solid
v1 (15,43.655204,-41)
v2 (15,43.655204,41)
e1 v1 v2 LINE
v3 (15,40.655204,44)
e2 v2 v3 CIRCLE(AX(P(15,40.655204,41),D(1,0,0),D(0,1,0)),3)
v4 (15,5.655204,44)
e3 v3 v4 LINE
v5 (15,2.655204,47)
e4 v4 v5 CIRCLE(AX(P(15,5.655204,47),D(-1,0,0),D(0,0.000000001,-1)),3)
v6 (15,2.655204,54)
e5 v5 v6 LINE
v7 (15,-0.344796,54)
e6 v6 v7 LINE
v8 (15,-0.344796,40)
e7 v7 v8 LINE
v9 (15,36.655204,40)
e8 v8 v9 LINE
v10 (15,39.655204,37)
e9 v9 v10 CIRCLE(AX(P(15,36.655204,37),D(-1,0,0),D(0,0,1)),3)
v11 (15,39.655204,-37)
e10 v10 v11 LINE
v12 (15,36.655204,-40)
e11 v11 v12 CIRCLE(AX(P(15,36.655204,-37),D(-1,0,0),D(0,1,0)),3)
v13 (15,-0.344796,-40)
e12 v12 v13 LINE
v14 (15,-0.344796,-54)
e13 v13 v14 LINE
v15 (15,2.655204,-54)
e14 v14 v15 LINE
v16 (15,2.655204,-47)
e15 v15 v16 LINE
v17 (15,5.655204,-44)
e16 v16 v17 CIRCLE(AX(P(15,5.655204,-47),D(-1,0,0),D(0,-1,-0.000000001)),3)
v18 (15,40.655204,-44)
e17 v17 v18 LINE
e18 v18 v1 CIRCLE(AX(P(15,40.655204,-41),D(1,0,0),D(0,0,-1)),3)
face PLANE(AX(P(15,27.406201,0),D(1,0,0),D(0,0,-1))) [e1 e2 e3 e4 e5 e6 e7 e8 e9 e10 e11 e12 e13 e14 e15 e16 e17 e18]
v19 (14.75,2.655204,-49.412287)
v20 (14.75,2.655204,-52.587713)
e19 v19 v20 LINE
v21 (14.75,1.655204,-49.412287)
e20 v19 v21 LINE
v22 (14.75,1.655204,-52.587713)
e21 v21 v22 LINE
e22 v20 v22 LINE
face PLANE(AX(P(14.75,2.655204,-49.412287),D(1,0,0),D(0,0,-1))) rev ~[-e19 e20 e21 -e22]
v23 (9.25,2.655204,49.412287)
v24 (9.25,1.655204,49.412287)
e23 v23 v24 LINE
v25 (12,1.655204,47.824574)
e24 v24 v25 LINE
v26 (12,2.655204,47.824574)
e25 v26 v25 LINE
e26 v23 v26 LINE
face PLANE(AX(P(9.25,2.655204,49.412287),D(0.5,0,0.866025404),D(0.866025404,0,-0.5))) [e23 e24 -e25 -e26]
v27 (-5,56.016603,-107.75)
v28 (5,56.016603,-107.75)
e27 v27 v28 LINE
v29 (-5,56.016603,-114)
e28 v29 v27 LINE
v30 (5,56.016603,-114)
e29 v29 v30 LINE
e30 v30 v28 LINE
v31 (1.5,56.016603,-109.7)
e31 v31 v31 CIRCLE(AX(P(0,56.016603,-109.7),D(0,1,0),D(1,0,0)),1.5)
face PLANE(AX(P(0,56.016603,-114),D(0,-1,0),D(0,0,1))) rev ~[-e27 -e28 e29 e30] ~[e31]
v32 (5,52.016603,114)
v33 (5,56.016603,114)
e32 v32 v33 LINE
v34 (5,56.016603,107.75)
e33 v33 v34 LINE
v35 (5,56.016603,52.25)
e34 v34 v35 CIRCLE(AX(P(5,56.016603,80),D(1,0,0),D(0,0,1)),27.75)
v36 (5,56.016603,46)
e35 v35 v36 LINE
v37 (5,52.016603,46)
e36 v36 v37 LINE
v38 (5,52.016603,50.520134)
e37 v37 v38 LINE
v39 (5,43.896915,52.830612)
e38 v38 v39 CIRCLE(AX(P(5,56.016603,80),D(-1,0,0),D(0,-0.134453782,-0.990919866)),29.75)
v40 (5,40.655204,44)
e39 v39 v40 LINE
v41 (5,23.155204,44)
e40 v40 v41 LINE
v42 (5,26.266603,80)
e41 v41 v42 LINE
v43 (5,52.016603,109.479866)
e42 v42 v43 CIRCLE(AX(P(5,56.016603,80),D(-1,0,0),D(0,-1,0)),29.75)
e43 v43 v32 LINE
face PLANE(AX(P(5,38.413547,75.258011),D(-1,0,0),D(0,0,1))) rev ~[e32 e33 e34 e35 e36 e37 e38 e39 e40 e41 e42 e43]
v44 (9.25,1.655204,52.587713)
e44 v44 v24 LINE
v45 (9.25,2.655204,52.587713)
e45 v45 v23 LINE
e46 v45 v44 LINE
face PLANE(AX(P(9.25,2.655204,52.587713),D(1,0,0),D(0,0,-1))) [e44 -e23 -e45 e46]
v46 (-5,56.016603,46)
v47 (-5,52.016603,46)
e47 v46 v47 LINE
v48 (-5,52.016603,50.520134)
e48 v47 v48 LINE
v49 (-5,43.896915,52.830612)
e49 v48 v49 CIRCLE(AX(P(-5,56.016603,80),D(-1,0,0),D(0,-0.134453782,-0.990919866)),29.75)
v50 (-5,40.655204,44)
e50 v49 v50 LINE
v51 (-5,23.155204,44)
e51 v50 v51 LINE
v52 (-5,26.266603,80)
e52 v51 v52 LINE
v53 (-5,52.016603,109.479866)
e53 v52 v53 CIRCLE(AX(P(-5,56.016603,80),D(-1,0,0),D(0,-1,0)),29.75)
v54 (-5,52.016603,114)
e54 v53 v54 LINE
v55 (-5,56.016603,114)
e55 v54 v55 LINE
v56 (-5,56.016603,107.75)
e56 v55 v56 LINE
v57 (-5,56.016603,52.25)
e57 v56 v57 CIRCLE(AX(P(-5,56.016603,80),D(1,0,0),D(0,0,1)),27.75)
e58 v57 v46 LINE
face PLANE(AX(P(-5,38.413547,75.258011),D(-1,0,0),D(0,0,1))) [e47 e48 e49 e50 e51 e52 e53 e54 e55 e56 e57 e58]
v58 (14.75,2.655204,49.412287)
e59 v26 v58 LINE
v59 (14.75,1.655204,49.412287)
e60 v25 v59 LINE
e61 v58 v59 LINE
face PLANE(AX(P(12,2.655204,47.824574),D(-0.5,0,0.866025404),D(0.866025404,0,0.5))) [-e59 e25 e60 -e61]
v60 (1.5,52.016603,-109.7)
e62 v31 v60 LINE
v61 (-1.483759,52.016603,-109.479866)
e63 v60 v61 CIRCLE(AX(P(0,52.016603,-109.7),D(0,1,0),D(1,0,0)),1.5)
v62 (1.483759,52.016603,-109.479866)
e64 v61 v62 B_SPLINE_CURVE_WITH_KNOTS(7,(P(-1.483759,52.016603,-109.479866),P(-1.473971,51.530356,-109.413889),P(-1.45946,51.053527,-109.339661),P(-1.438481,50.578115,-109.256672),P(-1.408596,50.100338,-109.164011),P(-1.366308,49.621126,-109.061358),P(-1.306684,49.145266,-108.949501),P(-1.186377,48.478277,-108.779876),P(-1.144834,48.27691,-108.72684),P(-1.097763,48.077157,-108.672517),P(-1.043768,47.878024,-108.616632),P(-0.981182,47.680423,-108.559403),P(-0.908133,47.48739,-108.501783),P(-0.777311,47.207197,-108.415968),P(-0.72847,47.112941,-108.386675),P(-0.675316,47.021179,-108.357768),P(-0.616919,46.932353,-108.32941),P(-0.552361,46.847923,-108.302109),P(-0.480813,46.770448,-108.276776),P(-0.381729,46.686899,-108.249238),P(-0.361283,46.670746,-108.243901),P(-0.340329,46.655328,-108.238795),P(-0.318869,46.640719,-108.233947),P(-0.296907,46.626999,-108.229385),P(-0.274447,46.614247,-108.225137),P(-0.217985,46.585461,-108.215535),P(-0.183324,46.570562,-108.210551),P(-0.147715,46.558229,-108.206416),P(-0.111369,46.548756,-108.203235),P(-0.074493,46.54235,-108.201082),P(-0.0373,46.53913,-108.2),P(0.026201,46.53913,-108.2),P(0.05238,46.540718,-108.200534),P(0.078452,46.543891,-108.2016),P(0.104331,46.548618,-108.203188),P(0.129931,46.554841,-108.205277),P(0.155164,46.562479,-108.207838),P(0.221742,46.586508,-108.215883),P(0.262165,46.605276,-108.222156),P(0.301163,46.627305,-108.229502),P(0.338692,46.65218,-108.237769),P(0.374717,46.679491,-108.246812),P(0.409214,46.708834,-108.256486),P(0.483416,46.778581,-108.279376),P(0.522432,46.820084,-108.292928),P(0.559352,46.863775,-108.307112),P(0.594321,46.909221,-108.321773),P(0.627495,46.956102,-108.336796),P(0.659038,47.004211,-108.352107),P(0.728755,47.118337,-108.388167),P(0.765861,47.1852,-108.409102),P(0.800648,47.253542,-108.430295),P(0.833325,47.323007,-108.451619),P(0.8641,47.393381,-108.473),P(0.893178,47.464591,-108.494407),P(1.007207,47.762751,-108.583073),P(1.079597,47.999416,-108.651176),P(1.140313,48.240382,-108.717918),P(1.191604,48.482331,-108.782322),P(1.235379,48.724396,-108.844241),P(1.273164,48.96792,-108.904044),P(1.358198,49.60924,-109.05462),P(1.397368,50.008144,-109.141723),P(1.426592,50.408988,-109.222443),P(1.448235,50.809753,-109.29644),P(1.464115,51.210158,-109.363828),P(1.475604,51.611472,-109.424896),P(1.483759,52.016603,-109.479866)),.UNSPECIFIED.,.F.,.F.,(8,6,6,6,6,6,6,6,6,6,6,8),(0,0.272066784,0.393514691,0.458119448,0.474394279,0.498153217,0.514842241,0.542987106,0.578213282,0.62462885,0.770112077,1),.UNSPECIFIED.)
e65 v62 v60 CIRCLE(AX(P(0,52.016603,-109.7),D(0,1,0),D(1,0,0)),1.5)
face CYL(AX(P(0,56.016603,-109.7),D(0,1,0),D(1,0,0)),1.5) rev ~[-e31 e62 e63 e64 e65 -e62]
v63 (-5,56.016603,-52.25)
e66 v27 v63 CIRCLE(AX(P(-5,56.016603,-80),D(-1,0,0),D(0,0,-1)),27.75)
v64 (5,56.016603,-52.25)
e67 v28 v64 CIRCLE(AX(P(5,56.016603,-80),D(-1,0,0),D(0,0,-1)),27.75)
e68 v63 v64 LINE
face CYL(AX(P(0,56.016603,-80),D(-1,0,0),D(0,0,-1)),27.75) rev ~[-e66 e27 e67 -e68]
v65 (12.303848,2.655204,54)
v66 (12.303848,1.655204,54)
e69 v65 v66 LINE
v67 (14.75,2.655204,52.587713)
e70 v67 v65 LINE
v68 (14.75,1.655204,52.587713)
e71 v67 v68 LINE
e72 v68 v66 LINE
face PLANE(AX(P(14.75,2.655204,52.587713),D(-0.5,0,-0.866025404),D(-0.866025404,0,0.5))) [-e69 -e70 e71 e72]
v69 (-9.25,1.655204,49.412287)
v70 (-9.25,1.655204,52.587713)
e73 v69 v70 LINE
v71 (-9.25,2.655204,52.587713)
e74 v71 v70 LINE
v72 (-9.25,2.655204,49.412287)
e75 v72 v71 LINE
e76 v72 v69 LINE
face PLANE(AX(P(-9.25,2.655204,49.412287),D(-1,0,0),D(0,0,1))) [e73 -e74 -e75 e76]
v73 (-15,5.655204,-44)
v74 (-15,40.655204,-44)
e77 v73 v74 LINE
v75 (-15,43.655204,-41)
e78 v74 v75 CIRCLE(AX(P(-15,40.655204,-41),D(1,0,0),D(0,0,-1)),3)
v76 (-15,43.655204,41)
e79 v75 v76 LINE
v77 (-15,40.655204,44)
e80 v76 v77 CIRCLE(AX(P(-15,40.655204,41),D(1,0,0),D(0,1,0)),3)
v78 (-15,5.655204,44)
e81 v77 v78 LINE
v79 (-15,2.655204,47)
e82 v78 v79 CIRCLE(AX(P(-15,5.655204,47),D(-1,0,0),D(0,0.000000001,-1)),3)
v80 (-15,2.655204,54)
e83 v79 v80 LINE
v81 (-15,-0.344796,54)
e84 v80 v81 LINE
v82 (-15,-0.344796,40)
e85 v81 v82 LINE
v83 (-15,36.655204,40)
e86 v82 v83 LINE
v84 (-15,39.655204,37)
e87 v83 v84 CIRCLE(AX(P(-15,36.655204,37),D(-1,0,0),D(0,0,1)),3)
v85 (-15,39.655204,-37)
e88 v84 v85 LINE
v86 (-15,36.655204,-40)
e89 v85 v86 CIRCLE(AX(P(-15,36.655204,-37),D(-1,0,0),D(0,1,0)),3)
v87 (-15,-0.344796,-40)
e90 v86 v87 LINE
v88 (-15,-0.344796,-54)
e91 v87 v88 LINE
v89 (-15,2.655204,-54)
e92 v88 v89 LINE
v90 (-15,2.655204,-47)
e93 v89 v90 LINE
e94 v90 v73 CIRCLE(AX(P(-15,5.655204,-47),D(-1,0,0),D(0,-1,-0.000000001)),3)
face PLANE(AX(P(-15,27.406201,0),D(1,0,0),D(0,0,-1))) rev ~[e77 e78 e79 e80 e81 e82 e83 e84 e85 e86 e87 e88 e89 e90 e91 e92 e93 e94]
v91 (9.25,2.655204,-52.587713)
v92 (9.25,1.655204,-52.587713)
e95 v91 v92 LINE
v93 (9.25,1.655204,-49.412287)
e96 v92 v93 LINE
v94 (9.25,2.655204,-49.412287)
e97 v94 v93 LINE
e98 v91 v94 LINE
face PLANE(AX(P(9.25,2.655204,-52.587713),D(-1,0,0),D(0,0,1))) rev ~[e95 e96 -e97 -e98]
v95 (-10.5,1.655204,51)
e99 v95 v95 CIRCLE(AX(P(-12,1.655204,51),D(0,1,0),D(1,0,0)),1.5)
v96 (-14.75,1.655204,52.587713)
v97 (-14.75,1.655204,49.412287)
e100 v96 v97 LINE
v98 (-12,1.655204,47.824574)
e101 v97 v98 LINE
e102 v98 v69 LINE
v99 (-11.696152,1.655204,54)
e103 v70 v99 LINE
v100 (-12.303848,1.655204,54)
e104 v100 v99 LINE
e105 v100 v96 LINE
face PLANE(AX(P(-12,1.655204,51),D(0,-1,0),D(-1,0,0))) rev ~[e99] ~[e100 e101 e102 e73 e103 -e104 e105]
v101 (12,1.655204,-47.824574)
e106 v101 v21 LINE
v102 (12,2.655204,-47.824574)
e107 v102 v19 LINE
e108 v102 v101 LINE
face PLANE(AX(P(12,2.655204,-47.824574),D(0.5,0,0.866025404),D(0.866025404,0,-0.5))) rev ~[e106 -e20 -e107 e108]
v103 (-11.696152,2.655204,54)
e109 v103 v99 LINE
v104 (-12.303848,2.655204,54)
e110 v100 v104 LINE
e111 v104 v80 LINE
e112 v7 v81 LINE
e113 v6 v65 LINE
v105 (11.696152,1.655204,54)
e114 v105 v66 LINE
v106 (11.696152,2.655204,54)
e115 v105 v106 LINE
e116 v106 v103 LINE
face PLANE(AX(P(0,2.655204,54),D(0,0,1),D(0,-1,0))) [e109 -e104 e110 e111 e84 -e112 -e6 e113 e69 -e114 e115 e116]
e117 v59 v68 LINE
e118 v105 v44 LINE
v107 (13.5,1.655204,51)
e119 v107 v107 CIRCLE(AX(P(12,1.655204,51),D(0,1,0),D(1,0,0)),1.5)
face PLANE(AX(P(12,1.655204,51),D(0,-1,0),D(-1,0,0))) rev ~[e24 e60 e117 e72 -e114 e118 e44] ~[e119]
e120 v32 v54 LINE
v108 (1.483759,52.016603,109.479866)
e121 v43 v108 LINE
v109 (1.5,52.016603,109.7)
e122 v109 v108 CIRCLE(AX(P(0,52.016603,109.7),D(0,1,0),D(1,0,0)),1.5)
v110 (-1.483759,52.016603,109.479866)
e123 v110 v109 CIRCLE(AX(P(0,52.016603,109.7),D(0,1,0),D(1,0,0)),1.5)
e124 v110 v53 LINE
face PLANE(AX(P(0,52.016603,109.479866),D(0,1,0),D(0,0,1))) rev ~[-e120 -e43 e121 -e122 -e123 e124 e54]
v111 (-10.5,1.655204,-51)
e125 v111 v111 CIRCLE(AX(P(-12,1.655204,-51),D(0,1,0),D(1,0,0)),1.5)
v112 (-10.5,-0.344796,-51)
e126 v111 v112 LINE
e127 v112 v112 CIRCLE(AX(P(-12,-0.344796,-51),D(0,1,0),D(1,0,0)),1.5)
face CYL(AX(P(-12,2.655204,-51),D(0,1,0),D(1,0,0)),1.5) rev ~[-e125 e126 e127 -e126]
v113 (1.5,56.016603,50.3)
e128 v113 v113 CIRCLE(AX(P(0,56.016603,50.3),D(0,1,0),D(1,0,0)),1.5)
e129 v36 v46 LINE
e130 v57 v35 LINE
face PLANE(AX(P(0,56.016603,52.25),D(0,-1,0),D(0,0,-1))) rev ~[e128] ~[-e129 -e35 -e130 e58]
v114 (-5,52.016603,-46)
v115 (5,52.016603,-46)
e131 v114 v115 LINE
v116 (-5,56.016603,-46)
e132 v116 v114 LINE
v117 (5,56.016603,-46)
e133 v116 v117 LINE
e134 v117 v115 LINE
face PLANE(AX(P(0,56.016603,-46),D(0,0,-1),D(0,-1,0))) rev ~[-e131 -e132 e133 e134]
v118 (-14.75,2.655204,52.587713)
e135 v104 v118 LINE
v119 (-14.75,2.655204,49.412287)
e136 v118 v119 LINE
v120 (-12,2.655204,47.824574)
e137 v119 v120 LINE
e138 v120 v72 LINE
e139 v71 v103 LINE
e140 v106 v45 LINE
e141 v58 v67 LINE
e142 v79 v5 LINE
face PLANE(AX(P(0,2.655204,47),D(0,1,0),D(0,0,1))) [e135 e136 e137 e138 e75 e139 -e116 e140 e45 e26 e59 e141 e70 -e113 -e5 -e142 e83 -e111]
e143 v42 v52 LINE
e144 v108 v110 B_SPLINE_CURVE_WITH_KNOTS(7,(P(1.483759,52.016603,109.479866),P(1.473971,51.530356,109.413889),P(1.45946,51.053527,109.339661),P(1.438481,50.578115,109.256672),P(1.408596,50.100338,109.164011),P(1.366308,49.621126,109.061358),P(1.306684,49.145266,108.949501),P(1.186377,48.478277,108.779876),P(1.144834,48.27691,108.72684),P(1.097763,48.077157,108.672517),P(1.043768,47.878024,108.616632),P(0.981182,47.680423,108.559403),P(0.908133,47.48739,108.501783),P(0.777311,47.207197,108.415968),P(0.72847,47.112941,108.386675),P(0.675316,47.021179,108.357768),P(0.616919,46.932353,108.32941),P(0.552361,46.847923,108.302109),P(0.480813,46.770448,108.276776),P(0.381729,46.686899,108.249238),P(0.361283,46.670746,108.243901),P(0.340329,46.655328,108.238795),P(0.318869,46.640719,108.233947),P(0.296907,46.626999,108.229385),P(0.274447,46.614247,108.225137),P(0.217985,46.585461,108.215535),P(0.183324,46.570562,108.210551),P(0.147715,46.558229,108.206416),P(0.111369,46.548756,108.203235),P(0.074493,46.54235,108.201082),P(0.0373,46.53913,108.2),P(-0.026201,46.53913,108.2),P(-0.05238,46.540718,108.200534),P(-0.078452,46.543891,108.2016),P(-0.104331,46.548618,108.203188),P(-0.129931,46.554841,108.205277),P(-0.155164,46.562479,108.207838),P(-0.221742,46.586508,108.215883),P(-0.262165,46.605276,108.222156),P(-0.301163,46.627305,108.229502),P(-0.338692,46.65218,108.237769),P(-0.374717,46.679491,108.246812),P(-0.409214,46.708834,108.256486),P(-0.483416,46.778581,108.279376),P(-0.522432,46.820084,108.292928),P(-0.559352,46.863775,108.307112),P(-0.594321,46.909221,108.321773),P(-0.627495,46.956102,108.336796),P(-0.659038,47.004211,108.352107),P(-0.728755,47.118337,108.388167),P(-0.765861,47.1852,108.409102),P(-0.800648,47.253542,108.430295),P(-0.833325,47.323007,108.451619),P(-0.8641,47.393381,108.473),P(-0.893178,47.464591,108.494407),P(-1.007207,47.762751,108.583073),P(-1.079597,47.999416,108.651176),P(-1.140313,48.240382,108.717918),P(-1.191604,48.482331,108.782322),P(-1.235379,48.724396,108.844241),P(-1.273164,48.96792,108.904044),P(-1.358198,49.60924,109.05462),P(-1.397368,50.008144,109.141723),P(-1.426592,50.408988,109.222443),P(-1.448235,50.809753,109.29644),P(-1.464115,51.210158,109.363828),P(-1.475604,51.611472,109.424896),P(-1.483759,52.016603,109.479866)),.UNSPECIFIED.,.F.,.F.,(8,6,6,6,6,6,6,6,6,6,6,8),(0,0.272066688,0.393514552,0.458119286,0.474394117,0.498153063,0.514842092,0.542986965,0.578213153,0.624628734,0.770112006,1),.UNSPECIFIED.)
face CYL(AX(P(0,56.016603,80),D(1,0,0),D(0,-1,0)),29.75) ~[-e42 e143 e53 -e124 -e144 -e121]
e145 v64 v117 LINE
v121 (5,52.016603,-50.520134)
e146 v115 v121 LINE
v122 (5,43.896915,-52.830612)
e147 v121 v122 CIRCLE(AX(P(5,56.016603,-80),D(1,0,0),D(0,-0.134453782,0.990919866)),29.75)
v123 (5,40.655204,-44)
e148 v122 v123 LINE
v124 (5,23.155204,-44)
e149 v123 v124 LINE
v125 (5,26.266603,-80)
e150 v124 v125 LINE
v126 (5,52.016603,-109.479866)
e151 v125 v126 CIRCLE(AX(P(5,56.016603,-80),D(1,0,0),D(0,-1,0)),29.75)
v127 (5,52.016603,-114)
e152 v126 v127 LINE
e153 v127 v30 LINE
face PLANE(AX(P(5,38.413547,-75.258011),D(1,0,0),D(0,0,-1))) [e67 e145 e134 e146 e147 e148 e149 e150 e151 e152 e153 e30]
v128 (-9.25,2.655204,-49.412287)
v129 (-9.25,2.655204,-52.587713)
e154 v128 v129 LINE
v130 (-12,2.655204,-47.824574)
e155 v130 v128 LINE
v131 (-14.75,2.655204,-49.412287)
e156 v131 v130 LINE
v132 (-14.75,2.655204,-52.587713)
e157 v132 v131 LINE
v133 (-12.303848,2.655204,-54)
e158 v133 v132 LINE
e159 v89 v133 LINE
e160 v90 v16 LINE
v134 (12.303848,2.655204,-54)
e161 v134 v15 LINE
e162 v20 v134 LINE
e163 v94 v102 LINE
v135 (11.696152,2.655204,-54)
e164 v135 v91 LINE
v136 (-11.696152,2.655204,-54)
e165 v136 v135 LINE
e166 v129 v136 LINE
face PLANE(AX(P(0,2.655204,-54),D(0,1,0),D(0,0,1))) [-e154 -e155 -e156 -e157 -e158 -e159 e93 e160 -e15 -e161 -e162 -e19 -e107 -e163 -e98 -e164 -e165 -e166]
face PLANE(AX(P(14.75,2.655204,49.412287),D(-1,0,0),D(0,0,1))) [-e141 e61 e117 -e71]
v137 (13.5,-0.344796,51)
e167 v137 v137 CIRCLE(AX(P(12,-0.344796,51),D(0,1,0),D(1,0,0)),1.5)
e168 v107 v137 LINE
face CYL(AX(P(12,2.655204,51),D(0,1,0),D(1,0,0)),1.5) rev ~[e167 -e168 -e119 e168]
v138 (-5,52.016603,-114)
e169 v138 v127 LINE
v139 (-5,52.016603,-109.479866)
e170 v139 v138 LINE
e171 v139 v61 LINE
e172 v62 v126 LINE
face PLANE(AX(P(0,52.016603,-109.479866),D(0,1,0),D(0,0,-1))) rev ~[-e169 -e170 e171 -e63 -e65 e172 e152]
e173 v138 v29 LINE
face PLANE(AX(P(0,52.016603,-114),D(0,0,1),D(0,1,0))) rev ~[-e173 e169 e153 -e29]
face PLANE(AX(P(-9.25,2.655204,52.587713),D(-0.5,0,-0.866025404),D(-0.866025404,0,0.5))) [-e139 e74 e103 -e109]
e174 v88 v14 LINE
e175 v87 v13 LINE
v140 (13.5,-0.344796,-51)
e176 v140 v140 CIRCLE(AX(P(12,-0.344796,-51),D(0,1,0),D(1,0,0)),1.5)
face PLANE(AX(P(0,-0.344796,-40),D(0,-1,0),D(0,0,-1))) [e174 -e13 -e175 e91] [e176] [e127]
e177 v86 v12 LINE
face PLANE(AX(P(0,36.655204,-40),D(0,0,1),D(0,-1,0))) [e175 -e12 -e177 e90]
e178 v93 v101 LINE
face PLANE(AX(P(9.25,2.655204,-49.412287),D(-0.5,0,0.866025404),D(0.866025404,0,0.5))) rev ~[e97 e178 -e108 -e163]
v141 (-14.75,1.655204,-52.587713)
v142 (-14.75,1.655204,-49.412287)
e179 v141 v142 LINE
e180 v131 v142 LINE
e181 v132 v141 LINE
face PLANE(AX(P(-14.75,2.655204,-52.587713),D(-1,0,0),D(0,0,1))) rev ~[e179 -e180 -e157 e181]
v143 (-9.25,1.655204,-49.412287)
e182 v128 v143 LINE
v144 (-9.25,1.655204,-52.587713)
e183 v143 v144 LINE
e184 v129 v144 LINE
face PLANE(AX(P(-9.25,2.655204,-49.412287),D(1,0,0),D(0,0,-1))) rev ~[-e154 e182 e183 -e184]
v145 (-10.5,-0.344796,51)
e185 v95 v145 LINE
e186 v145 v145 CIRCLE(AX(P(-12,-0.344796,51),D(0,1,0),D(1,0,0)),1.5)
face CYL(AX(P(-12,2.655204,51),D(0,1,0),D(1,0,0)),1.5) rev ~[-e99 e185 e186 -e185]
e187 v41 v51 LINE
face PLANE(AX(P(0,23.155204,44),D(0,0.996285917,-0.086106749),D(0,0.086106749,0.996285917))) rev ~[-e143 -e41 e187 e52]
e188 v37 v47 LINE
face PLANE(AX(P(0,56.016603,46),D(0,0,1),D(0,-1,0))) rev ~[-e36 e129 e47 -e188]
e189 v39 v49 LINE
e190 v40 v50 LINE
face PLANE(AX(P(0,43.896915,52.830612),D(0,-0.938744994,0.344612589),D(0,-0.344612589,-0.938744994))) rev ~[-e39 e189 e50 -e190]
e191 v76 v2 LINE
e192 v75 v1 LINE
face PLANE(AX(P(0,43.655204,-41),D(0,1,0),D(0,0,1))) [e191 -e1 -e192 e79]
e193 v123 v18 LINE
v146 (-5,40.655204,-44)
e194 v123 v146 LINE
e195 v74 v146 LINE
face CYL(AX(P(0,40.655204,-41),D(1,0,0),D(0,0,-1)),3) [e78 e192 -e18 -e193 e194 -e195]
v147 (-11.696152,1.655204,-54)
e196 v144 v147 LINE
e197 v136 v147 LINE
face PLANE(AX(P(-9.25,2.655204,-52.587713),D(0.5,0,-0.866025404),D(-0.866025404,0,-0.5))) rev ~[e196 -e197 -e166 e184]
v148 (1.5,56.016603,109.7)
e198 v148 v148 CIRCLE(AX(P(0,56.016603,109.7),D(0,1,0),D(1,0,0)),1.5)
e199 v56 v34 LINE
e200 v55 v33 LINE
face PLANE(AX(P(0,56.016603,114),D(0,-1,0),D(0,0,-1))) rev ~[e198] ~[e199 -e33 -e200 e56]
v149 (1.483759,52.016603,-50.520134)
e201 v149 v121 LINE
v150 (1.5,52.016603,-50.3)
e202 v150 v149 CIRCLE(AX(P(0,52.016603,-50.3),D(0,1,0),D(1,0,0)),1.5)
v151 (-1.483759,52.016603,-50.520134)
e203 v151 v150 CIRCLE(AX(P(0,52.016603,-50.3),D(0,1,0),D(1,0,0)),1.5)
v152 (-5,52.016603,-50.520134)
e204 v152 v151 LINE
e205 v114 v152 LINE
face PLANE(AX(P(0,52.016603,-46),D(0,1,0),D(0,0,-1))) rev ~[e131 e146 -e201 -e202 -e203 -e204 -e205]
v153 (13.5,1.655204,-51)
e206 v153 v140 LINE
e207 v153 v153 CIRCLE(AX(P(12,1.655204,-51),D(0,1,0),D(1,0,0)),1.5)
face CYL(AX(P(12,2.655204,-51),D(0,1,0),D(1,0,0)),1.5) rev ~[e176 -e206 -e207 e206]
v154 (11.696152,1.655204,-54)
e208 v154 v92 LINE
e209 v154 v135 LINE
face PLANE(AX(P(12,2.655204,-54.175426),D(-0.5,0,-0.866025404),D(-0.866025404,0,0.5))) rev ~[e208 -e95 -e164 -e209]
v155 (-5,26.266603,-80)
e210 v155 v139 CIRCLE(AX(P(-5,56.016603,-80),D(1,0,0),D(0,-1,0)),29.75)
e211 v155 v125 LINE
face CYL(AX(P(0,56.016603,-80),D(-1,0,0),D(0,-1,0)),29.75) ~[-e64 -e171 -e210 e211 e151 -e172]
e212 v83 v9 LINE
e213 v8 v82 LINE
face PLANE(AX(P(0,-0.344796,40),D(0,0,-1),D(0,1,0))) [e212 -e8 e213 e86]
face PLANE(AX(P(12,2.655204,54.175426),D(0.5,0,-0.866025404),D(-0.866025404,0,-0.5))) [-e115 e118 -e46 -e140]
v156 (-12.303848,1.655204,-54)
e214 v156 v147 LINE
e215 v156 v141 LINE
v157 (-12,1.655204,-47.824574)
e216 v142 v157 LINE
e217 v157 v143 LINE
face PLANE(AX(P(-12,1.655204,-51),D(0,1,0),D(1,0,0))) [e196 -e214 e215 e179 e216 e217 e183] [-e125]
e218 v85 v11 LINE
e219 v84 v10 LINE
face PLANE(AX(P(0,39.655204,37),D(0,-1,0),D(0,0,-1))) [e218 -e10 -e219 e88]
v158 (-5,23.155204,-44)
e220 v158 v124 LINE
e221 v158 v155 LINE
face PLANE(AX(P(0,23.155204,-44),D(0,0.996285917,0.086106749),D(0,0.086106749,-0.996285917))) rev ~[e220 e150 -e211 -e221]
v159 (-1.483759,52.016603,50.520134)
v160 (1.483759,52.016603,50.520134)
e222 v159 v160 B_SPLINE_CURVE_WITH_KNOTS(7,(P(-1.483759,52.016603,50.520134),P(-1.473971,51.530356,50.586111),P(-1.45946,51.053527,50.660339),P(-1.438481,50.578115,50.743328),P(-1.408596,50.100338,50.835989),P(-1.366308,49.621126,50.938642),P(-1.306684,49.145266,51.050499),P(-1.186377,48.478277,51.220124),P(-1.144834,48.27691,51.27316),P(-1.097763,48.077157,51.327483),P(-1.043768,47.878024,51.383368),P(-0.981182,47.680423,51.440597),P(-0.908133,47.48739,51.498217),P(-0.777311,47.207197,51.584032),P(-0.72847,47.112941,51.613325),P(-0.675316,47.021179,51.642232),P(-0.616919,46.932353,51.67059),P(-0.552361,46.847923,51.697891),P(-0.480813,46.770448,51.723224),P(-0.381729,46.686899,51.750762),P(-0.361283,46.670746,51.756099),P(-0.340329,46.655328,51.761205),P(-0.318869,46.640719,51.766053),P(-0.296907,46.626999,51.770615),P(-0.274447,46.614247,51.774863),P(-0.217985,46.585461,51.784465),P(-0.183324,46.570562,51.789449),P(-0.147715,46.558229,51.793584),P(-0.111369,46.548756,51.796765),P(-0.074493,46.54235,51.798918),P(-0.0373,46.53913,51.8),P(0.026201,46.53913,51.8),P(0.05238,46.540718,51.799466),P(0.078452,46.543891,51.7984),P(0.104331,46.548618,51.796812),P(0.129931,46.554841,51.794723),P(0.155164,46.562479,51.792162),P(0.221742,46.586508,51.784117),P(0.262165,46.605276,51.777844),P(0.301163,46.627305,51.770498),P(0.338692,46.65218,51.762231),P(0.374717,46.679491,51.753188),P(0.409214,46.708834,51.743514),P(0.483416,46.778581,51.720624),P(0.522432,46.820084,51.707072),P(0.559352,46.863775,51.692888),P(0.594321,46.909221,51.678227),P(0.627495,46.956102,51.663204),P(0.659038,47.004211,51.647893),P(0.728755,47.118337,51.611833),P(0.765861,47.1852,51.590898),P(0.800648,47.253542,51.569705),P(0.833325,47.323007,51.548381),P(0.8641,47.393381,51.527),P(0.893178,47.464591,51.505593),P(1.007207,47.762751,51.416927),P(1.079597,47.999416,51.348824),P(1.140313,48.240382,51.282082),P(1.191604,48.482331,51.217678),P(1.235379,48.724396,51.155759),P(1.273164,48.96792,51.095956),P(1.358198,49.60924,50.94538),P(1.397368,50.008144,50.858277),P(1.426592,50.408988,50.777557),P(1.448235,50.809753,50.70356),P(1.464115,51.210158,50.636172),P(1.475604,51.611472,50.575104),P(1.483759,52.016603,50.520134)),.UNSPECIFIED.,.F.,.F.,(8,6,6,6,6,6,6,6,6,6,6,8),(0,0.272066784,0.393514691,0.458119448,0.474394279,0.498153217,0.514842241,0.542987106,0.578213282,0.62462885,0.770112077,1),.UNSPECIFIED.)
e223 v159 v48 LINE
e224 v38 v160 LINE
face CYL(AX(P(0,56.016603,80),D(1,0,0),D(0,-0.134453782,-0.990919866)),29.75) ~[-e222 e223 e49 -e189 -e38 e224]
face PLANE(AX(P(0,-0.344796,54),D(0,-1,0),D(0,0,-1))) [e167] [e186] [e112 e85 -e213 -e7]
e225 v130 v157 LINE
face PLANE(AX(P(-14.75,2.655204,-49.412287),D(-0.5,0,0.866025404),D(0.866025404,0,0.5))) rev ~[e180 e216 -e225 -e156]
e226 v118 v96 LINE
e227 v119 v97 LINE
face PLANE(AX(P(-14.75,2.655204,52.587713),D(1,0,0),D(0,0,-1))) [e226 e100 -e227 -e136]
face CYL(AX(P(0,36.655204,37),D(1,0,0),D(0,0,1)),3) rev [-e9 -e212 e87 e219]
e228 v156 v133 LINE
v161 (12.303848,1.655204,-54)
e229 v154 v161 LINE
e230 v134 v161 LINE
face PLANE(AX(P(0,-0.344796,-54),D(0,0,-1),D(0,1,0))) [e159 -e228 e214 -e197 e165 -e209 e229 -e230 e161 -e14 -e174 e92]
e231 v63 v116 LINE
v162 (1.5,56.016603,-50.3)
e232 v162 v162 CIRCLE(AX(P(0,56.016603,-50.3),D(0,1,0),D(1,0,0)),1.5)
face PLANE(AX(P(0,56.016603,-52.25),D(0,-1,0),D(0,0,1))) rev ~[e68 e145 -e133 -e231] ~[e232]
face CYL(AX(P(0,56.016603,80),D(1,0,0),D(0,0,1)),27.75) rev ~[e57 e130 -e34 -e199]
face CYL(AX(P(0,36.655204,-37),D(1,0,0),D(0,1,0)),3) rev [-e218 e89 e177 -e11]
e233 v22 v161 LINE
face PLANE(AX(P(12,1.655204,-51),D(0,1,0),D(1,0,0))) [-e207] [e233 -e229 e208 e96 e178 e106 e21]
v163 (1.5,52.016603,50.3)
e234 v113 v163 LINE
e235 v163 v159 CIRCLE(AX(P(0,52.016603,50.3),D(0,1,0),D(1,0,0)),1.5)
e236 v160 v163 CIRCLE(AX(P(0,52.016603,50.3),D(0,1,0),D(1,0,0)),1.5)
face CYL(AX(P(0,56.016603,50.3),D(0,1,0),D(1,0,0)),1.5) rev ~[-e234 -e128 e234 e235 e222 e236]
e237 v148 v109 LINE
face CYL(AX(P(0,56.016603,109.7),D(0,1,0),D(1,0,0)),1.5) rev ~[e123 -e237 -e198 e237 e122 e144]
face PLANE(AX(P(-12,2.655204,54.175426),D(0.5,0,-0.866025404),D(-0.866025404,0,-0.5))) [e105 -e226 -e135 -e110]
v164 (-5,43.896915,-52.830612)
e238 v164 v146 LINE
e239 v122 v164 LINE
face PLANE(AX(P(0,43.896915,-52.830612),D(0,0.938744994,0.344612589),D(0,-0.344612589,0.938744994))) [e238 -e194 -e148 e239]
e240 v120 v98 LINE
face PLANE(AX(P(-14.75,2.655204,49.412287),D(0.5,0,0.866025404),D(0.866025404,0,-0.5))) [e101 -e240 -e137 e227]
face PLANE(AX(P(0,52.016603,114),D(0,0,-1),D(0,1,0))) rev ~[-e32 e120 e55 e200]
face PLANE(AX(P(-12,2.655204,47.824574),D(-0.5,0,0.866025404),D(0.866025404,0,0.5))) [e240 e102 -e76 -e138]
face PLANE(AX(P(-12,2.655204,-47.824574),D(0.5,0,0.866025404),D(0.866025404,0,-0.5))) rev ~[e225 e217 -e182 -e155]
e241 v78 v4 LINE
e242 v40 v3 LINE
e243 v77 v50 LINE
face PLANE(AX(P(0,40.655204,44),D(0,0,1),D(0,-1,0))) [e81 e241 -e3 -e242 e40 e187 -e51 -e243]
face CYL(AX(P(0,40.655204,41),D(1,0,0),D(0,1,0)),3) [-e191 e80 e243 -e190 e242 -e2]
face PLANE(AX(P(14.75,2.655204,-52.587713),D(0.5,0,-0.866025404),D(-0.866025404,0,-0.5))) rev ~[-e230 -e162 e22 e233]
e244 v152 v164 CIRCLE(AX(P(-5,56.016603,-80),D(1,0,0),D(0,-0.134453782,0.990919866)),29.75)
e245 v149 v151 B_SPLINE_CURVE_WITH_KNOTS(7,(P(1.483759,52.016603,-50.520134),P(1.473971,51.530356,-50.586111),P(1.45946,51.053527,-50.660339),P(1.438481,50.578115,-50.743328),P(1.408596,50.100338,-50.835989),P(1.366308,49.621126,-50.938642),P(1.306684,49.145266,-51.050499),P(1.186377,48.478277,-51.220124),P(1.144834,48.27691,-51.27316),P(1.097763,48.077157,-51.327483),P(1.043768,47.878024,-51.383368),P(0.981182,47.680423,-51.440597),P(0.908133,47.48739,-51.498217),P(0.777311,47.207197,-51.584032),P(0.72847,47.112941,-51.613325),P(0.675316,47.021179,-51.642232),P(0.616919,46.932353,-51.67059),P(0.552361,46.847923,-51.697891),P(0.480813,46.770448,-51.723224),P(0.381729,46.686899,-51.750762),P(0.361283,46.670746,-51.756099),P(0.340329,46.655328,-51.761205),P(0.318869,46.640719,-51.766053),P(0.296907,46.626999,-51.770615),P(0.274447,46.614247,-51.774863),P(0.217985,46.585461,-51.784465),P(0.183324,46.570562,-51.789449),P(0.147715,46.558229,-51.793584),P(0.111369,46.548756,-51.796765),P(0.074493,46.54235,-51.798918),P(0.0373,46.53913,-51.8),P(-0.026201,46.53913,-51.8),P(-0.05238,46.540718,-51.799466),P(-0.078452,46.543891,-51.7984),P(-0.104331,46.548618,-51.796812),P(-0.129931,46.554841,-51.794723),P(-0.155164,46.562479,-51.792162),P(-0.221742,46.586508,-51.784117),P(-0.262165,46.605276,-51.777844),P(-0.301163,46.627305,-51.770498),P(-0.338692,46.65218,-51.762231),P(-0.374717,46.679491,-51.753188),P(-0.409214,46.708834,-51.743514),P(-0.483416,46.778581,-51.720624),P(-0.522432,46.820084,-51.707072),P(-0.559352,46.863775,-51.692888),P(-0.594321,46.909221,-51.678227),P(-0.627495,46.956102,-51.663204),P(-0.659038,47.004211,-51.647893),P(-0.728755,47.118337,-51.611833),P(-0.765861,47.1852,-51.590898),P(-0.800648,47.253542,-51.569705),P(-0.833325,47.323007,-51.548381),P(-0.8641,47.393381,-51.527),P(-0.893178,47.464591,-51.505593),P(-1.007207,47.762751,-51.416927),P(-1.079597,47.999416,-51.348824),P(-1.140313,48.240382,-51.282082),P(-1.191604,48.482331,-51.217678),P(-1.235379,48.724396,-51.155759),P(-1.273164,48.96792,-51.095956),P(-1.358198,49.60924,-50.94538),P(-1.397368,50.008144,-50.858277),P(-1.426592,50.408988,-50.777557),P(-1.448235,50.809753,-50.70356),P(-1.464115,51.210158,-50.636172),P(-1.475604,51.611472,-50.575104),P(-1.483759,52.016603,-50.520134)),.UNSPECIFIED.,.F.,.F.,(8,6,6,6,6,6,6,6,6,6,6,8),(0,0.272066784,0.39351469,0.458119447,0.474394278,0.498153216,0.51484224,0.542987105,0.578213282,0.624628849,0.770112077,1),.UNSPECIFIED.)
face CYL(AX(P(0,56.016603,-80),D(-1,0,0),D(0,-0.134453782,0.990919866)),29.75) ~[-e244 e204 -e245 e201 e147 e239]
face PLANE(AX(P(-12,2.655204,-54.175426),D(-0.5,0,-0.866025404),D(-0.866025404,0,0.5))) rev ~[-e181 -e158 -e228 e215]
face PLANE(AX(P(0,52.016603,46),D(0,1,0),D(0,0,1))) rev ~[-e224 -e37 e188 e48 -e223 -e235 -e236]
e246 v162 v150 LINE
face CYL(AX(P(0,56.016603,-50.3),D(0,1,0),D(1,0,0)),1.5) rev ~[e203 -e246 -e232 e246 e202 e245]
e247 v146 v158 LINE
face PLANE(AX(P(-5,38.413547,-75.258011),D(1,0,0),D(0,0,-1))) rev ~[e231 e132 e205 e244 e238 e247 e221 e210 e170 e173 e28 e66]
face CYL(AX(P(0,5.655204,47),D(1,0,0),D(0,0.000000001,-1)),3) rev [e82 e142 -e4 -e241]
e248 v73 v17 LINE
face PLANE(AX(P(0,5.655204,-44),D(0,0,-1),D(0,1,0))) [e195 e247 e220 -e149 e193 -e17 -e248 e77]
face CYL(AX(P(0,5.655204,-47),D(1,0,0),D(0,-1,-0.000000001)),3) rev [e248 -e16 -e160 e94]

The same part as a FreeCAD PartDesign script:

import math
import FreeCAD as App
import Part
import Sketcher

V = App.Vector
Q = App.Units.Quantity

doc = App.newDocument("Part")
body = doc.addObject("PartDesign::Body", "Body")

sketch1 = body.newObject("Sketcher::SketchObject", "Sketch")
sketch1.AttachmentSupport = (doc.getObject("YZ_Plane"), [""])
sketch1.MapMode = "FlatFace"
sketch1.addGeometry(Part.LineSegment(V(-0.344796, 40, 0), V(36.655204, 40, 0)), False)
sketch1.addGeometry(Part.ArcOfCircle(Part.Circle(V(36.655204, 37, 0), V(0, 0, 1), 3), math.radians(0), math.radians(90)), False)
sketch1.addGeometry(Part.LineSegment(V(39.655204, 37, 0), V(39.655204, -37, 0)), False)
sketch1.addGeometry(Part.ArcOfCircle(Part.Circle(V(36.655204, -37, 0), V(0, 0, 1), 3), math.radians(-90), math.radians(0)), False)
sketch1.addGeometry(Part.LineSegment(V(36.655204, -40, 0), V(-0.344796, -40, 0)), False)
sketch1.addGeometry(Part.LineSegment(V(-0.344796, -40, 0), V(-0.344796, -54, 0)), False)
sketch1.addGeometry(Part.LineSegment(V(-0.344796, -54, 0), V(2.655204, -54, 0)), False)
sketch1.addGeometry(Part.LineSegment(V(2.655204, -54, 0), V(2.655204, -47, 0)), False)
sketch1.addGeometry(Part.ArcOfCircle(Part.Circle(V(5.655204, -47, 0), V(0, 0, 1), 3), math.radians(90), math.radians(180)), False)
sketch1.addGeometry(Part.LineSegment(V(5.655204, -44, 0), V(40.655204, -44, 0)), False)
sketch1.addGeometry(Part.ArcOfCircle(Part.Circle(V(40.655204, -41, 0), V(0, 0, 1), 3), math.radians(-90), math.radians(0)), False)
sketch1.addGeometry(Part.LineSegment(V(43.655204, -41, 0), V(43.655204, 41, 0)), False)
sketch1.addGeometry(Part.ArcOfCircle(Part.Circle(V(40.655204, 41, 0), V(0, 0, 1), 3), math.radians(0), math.radians(90)), False)
sketch1.addGeometry(Part.LineSegment(V(40.655204, 44, 0), V(5.655204, 44, 0)), False)
sketch1.addGeometry(Part.ArcOfCircle(Part.Circle(V(5.655204, 47, 0), V(0, 0, 1), 3), math.radians(180), math.radians(270)), False)
sketch1.addGeometry(Part.LineSegment(V(2.655204, 47, 0), V(2.655204, 54, 0)), False)
sketch1.addGeometry(Part.LineSegment(V(2.655204, 54, 0), V(-0.344796, 54, 0)), False)
sketch1.addGeometry(Part.LineSegment(V(-0.344796, 54, 0), V(-0.344796, 40, 0)), False)
sketch1.addConstraint(Sketcher.Constraint("Tangent", 0, 2, 1, 2))
sketch1.addConstraint(Sketcher.Constraint("Tangent", 1, 1, 2, 1))
sketch1.addConstraint(Sketcher.Constraint("Tangent", 2, 2, 3, 2))
sketch1.addConstraint(Sketcher.Constraint("Tangent", 3, 1, 4, 1))
sketch1.addConstraint(Sketcher.Constraint("Coincident", 4, 2, 5, 1))
sketch1.addConstraint(Sketcher.Constraint("Coincident", 5, 2, 6, 1))
sketch1.addConstraint(Sketcher.Constraint("Coincident", 6, 2, 7, 1))
sketch1.addConstraint(Sketcher.Constraint("Tangent", 7, 2, 8, 2))
sketch1.addConstraint(Sketcher.Constraint("Tangent", 8, 1, 9, 1))
sketch1.addConstraint(Sketcher.Constraint("Tangent", 9, 2, 10, 1))
sketch1.addConstraint(Sketcher.Constraint("Tangent", 10, 2, 11, 1))
sketch1.addConstraint(Sketcher.Constraint("Tangent", 11, 2, 12, 1))
sketch1.addConstraint(Sketcher.Constraint("Tangent", 12, 2, 13, 1))
sketch1.addConstraint(Sketcher.Constraint("Tangent", 13, 2, 14, 2))
sketch1.addConstraint(Sketcher.Constraint("Tangent", 14, 1, 15, 1))
sketch1.addConstraint(Sketcher.Constraint("Coincident", 15, 2, 16, 1))
sketch1.addConstraint(Sketcher.Constraint("Coincident", 16, 2, 17, 1))
sketch1.addConstraint(Sketcher.Constraint("Coincident", 17, 2, 0, 1))
sketch1.addConstraint(Sketcher.Constraint("Horizontal", 0))
sketch1.addConstraint(Sketcher.Constraint("Vertical", 2))
sketch1.addConstraint(Sketcher.Constraint("Horizontal", 4))
sketch1.addConstraint(Sketcher.Constraint("Vertical", 5))
sketch1.addConstraint(Sketcher.Constraint("Horizontal", 6))
sketch1.addConstraint(Sketcher.Constraint("Vertical", 7))
sketch1.addConstraint(Sketcher.Constraint("Horizontal", 9))
sketch1.addConstraint(Sketcher.Constraint("Vertical", 11))
sketch1.addConstraint(Sketcher.Constraint("Horizontal", 13))
sketch1.addConstraint(Sketcher.Constraint("Vertical", 15))
sketch1.addConstraint(Sketcher.Constraint("Horizontal", 16))
sketch1.addConstraint(Sketcher.Constraint("Vertical", 17))
sketch1.addConstraint(Sketcher.Constraint("Equal", 1, 3))
sketch1.addConstraint(Sketcher.Constraint("Equal", 3, 8))
sketch1.addConstraint(Sketcher.Constraint("Equal", 8, 10))
sketch1.addConstraint(Sketcher.Constraint("Equal", 10, 12))
sketch1.addConstraint(Sketcher.Constraint("Equal", 12, 14))
sketch1.addConstraint(Sketcher.Constraint("Symmetric", 8, 3, 14, 3, -1))
sketch1.addConstraint(Sketcher.Constraint("Symmetric", 5, 2, 16, 2, -1))
sketch1.addConstraint(Sketcher.Constraint("Equal", 5, 17))
sketch1.addConstraint(Sketcher.Constraint("Radius", 1, 3.0))
sketch1.addConstraint(Sketcher.Constraint("DistanceX", 0, 1, 0, 2, 37.0))
sketch1.addConstraint(Sketcher.Constraint("DistanceX", 6, 1, 6, 2, 3.0))
sketch1.addConstraint(Sketcher.Constraint("DistanceX", 9, 1, 9, 2, 35.0))
sketch1.addConstraint(Sketcher.Constraint("DistanceY", 2, 2, 2, 1, 74.0))
sketch1.addConstraint(Sketcher.Constraint("DistanceY", 5, 2, 5, 1, 14.0))
sketch1.addConstraint(Sketcher.Constraint("DistanceY", 7, 1, 7, 2, 7.0))
sketch1.addConstraint(Sketcher.Constraint("DistanceX", -1, 1, 1, 3, 36.655204))
pad1 = body.newObject("PartDesign::Pad", "Pad")
pad1.Profile = sketch1
pad1.Type = "TwoLengths"
pad1.Length = 15
pad1.Length2 = 15

sketch2 = body.newObject("Sketcher::SketchObject", "Sketch001")
sketch2.AttachmentSupport = (doc.getObject("YZ_Plane"), [""])
sketch2.MapMode = "FlatFace"
sketch2.addGeometry(Part.LineSegment(V(56.016603, 46, 0), V(56.016603, 52.25, 0)), False)
sketch2.addGeometry(Part.ArcOfCircle(Part.Circle(V(56.016603, 80, 0), V(0, 0, 1), 27.75), math.radians(90), math.radians(270)), False)
sketch2.addGeometry(Part.LineSegment(V(56.016603, 107.75, 0), V(56.016603, 114, 0)), False)
sketch2.addGeometry(Part.LineSegment(V(56.016603, 114, 0), V(52.016603, 114, 0)), False)
sketch2.addGeometry(Part.LineSegment(V(52.016603, 114, 0), V(52.016603, 109.479866, 0)), False)
sketch2.addGeometry(Part.ArcOfCircle(Part.Circle(V(56.016603, 80, 0), V(0, 0, 1), 29.75), math.radians(97.727036), math.radians(180)), False)
sketch2.addGeometry(Part.LineSegment(V(26.266603, 80, 0), V(23.155204, 44, 0)), False)
sketch2.addGeometry(Part.LineSegment(V(23.155204, 44, 0), V(40.655204, 44, 0)), False)
sketch2.addGeometry(Part.LineSegment(V(40.655204, 44, 0), V(43.896915, 52.830612, 0)), False)
sketch2.addGeometry(Part.ArcOfCircle(Part.Circle(V(56.016603, 80, 0), V(0, 0, 1), 29.75), math.radians(-114.040637), math.radians(-97.727036)), False)
sketch2.addGeometry(Part.LineSegment(V(52.016603, 50.520134, 0), V(52.016603, 46, 0)), False)
sketch2.addGeometry(Part.LineSegment(V(52.016603, 46, 0), V(56.016603, 46, 0)), False)
sketch2.addGeometry(Part.LineSegment(V(43.896915, -52.830612, 0), V(40.655204, -44, 0)), False)
sketch2.addGeometry(Part.LineSegment(V(40.655204, -44, 0), V(23.155204, -44, 0)), False)
sketch2.addGeometry(Part.LineSegment(V(23.155204, -44, 0), V(26.266603, -80, 0)), False)
sketch2.addGeometry(Part.ArcOfCircle(Part.Circle(V(56.016603, -80, 0), V(0, 0, 1), 29.75), math.radians(180), math.radians(262.272964)), False)
sketch2.addGeometry(Part.LineSegment(V(52.016603, -109.479866, 0), V(52.016603, -114, 0)), False)
sketch2.addGeometry(Part.LineSegment(V(52.016603, -114, 0), V(56.016603, -114, 0)), False)
sketch2.addGeometry(Part.LineSegment(V(56.016603, -114, 0), V(56.016603, -107.75, 0)), False)
sketch2.addGeometry(Part.ArcOfCircle(Part.Circle(V(56.016603, -80, 0), V(0, 0, 1), 27.75), math.radians(90), math.radians(270)), False)
sketch2.addGeometry(Part.LineSegment(V(56.016603, -52.25, 0), V(56.016603, -46, 0)), False)
sketch2.addGeometry(Part.LineSegment(V(56.016603, -46, 0), V(52.016603, -46, 0)), False)
sketch2.addGeometry(Part.LineSegment(V(52.016603, -46, 0), V(52.016603, -50.520134, 0)), False)
sketch2.addGeometry(Part.ArcOfCircle(Part.Circle(V(56.016603, -80, 0), V(0, 0, 1), 29.75), math.radians(97.727036), math.radians(114.040637)), False)
sketch2.addConstraint(Sketcher.Constraint("Coincident", 0, 2, 1, 2))
sketch2.addConstraint(Sketcher.Constraint("Coincident", 1, 1, 2, 1))
sketch2.addConstraint(Sketcher.Constraint("Coincident", 2, 2, 3, 1))
sketch2.addConstraint(Sketcher.Constraint("Coincident", 3, 2, 4, 1))
sketch2.addConstraint(Sketcher.Constraint("Coincident", 4, 2, 5, 1))
sketch2.addConstraint(Sketcher.Constraint("Coincident", 5, 2, 6, 1))
sketch2.addConstraint(Sketcher.Constraint("Coincident", 6, 2, 7, 1))
sketch2.addConstraint(Sketcher.Constraint("Coincident", 7, 2, 8, 1))
sketch2.addConstraint(Sketcher.Constraint("Coincident", 8, 2, 9, 1))
sketch2.addConstraint(Sketcher.Constraint("Coincident", 9, 2, 10, 1))
sketch2.addConstraint(Sketcher.Constraint("Coincident", 10, 2, 11, 1))
sketch2.addConstraint(Sketcher.Constraint("Coincident", 11, 2, 0, 1))
sketch2.addConstraint(Sketcher.Constraint("Coincident", 12, 2, 13, 1))
sketch2.addConstraint(Sketcher.Constraint("Coincident", 13, 2, 14, 1))
sketch2.addConstraint(Sketcher.Constraint("Coincident", 14, 2, 15, 1))
sketch2.addConstraint(Sketcher.Constraint("Coincident", 15, 2, 16, 1))
sketch2.addConstraint(Sketcher.Constraint("Coincident", 16, 2, 17, 1))
sketch2.addConstraint(Sketcher.Constraint("Coincident", 17, 2, 18, 1))
sketch2.addConstraint(Sketcher.Constraint("Coincident", 18, 2, 19, 2))
sketch2.addConstraint(Sketcher.Constraint("Coincident", 19, 1, 20, 1))
sketch2.addConstraint(Sketcher.Constraint("Coincident", 20, 2, 21, 1))
sketch2.addConstraint(Sketcher.Constraint("Coincident", 21, 2, 22, 1))
sketch2.addConstraint(Sketcher.Constraint("Coincident", 22, 2, 23, 1))
sketch2.addConstraint(Sketcher.Constraint("Coincident", 23, 2, 12, 1))
sketch2.addConstraint(Sketcher.Constraint("Vertical", 0))
sketch2.addConstraint(Sketcher.Constraint("Vertical", 2))
sketch2.addConstraint(Sketcher.Constraint("Horizontal", 3))
sketch2.addConstraint(Sketcher.Constraint("Vertical", 4))
sketch2.addConstraint(Sketcher.Constraint("Horizontal", 7))
sketch2.addConstraint(Sketcher.Constraint("Vertical", 10))
sketch2.addConstraint(Sketcher.Constraint("Horizontal", 11))
sketch2.addConstraint(Sketcher.Constraint("Horizontal", 13))
sketch2.addConstraint(Sketcher.Constraint("Vertical", 16))
sketch2.addConstraint(Sketcher.Constraint("Horizontal", 17))
sketch2.addConstraint(Sketcher.Constraint("Vertical", 18))
sketch2.addConstraint(Sketcher.Constraint("Vertical", 20))
sketch2.addConstraint(Sketcher.Constraint("Horizontal", 21))
sketch2.addConstraint(Sketcher.Constraint("Vertical", 22))
sketch2.addConstraint(Sketcher.Constraint("Coincident", 5, 3, 1, 3))
sketch2.addConstraint(Sketcher.Constraint("Coincident", 9, 3, 1, 3))
sketch2.addConstraint(Sketcher.Constraint("Coincident", 19, 3, 15, 3))
sketch2.addConstraint(Sketcher.Constraint("Coincident", 23, 3, 15, 3))
sketch2.addConstraint(Sketcher.Constraint("Equal", 5, 9))
sketch2.addConstraint(Sketcher.Constraint("Equal", 9, 15))
sketch2.addConstraint(Sketcher.Constraint("Equal", 1, 19))
sketch2.addConstraint(Sketcher.Constraint("Equal", 15, 23))
sketch2.addConstraint(Sketcher.Constraint("Symmetric", 1, 3, 15, 3, -1))
sketch2.addConstraint(Sketcher.Constraint("Symmetric", 7, 2, 12, 2, -1))
sketch2.addConstraint(Sketcher.Constraint("Symmetric", 3, 2, 16, 2, -1))
sketch2.addConstraint(Sketcher.Constraint("Symmetric", 11, 2, 20, 2, -1))
sketch2.addConstraint(Sketcher.Constraint("Horizontal", 9, 3, 5, 2))
sketch2.addConstraint(Sketcher.Constraint("Horizontal", 23, 3, 14, 2))
sketch2.addConstraint(Sketcher.Constraint("Vertical", 23, 3, 0, 2))
sketch2.addConstraint(Sketcher.Constraint("Vertical", 0, 2, 1, 1))
sketch2.addConstraint(Sketcher.Constraint("Vertical", 4, 2, 9, 2))
sketch2.addConstraint(Sketcher.Constraint("Vertical", 6, 2, 13, 2))
sketch2.addConstraint(Sketcher.Constraint("Vertical", 11, 2, 17, 2))
sketch2.addConstraint(Sketcher.Constraint("Vertical", 16, 2, 21, 2))
sketch2.addConstraint(Sketcher.Constraint("Vertical", 8, 2, 23, 2))
sketch2.addConstraint(Sketcher.Constraint("Equal", 0, 2))
sketch2.addConstraint(Sketcher.Constraint("DistanceX", 3, 2, 3, 1, 4.0))
sketch2.addConstraint(Sketcher.Constraint("Radius", 1, 27.75))
sketch2.addConstraint(Sketcher.Constraint("Radius", 5, 29.75))
sketch2.addConstraint(Sketcher.Constraint("DistanceX", 7, 1, 7, 2, 17.5))
sketch2.addConstraint(Sketcher.Constraint("DistanceY", -1, 1, 1, 3, 80.0))
sketch2.addConstraint(Sketcher.Constraint("DistanceY", -1, 1, 2, 2, 114.0))
sketch2.addConstraint(Sketcher.Constraint("DistanceY", -1, 1, 6, 2, 44.0))
sketch2.addConstraint(Sketcher.Constraint("DistanceX", 6, 2, 0, 2, 32.861399))
sketch2.addConstraint(Sketcher.Constraint("DistanceY", -1, 1, 8, 2, 52.830612))
sketch2.addConstraint(Sketcher.Constraint("DistanceX", -1, 1, 1, 3, 56.016603))
pad2 = body.newObject("PartDesign::Pad", "Pad001")
pad2.Profile = sketch2
pad2.Type = "TwoLengths"
pad2.Length = 5
pad2.Length2 = 5

sketch3 = body.newObject("Sketcher::SketchObject", "Sketch002")
sketch3.AttachmentSupport = (doc.getObject("XZ_Plane"), [""])
sketch3.MapMode = "FlatFace"
sketch3.AttachmentOffset = App.Placement(V(0, 0, -56.016603), App.Rotation())
sketch3.addGeometry(Part.Circle(V(0, -109.7, 0), V(0, 0, 1), 1.5), False)
sketch3.addGeometry(Part.Circle(V(0, -50.3, 0), V(0, 0, 1), 1.5), False)
sketch3.addGeometry(Part.Circle(V(0, 50.3, 0), V(0, 0, 1), 1.5), False)
sketch3.addGeometry(Part.Circle(V(0, 109.7, 0), V(0, 0, 1), 1.5), False)
sketch3.addConstraint(Sketcher.Constraint("Equal", 0, 1))
sketch3.addConstraint(Sketcher.Constraint("Equal", 1, 2))
sketch3.addConstraint(Sketcher.Constraint("Equal", 2, 3))
sketch3.addConstraint(Sketcher.Constraint("Symmetric", 1, 3, 2, 3, -1, 1))
sketch3.addConstraint(Sketcher.Constraint("Symmetric", 0, 3, 3, 3, -1, 1))
sketch3.addConstraint(Sketcher.Constraint("PointOnObject", 0, 3, -2))
sketch3.addConstraint(Sketcher.Constraint("PointOnObject", 1, 3, -2))
sketch3.addConstraint(Sketcher.Constraint("Diameter", 0, 3.0))
sketch3.addConstraint(Sketcher.Constraint("DistanceY", 0, 3, 2, 3, 160.0))
sketch3.addConstraint(Sketcher.Constraint("DistanceY", 0, 3, -1, 1, 109.7))
pocket1 = body.newObject("PartDesign::Pocket", "Pocket")
pocket1.Profile = sketch3
pocket1.Length = 11
pocket1.Reversed = True

sketch4 = body.newObject("Sketcher::SketchObject", "Sketch003")
sketch4.AttachmentSupport = (doc.getObject("XZ_Plane"), [""])
sketch4.MapMode = "FlatFace"
sketch4.AttachmentOffset = App.Placement(V(0, 0, -2.655204), App.Rotation())
sketch4.addGeometry(Part.Circle(V(-12, 51, 0), V(0, 0, 1), 1.5), False)
sketch4.addGeometry(Part.Circle(V(12, 51, 0), V(0, 0, 1), 1.5), False)
sketch4.addGeometry(Part.Circle(V(12, -51, 0), V(0, 0, 1), 1.5), False)
sketch4.addGeometry(Part.Circle(V(-12, -51, 0), V(0, 0, 1), 1.5), False)
sketch4.addConstraint(Sketcher.Constraint("Equal", 0, 1))
sketch4.addConstraint(Sketcher.Constraint("Equal", 1, 2))
sketch4.addConstraint(Sketcher.Constraint("Equal", 2, 3))
sketch4.addConstraint(Sketcher.Constraint("Symmetric", 0, 3, 2, 3, -1, 1))
sketch4.addConstraint(Sketcher.Constraint("Symmetric", 1, 3, 3, 3, -1, 1))
sketch4.addConstraint(Sketcher.Constraint("Symmetric", 0, 3, 1, 3, -2))
sketch4.addConstraint(Sketcher.Constraint("Diameter", 0, 3.0))
sketch4.addConstraint(Sketcher.Constraint("DistanceX", 0, 3, -1, 1, 12.0))
sketch4.addConstraint(Sketcher.Constraint("DistanceY", -1, 1, 0, 3, 51.0))
pocket2 = body.newObject("PartDesign::Pocket", "Pocket001")
pocket2.Profile = sketch4
pocket2.Length = 11
pocket2.Reversed = True

sketch5 = body.newObject("Sketcher::SketchObject", "Sketch004")
sketch5.AttachmentSupport = (doc.getObject("XZ_Plane"), [""])
sketch5.MapMode = "FlatFace"
sketch5.AttachmentOffset = App.Placement(V(0, 0, -2.655204), App.Rotation())
sketch5.addGeometry(Part.LineSegment(V(-12, -54.175426, 0), V(-14.75, -52.587713, 0)), False)
sketch5.addGeometry(Part.LineSegment(V(-14.75, -52.587713, 0), V(-14.75, -49.412287, 0)), False)
sketch5.addGeometry(Part.LineSegment(V(-14.75, -49.412287, 0), V(-12, -47.824574, 0)), False)
sketch5.addGeometry(Part.LineSegment(V(-12, -47.824574, 0), V(-9.25, -49.412287, 0)), False)
sketch5.addGeometry(Part.LineSegment(V(-9.25, -49.412287, 0), V(-9.25, -52.587713, 0)), False)
sketch5.addGeometry(Part.LineSegment(V(-9.25, -52.587713, 0), V(-12, -54.175426, 0)), False)
sketch5.addGeometry(Part.LineSegment(V(12, -54.175426, 0), V(9.25, -52.587713, 0)), False)
sketch5.addGeometry(Part.LineSegment(V(9.25, -52.587713, 0), V(9.25, -49.412287, 0)), False)
sketch5.addGeometry(Part.LineSegment(V(9.25, -49.412287, 0), V(12, -47.824574, 0)), False)
sketch5.addGeometry(Part.LineSegment(V(12, -47.824574, 0), V(14.75, -49.412287, 0)), False)
sketch5.addGeometry(Part.LineSegment(V(14.75, -49.412287, 0), V(14.75, -52.587713, 0)), False)
sketch5.addGeometry(Part.LineSegment(V(14.75, -52.587713, 0), V(12, -54.175426, 0)), False)
sketch5.addGeometry(Part.LineSegment(V(12, 54.175426, 0), V(14.75, 52.587713, 0)), False)
sketch5.addGeometry(Part.LineSegment(V(14.75, 52.587713, 0), V(14.75, 49.412287, 0)), False)
sketch5.addGeometry(Part.LineSegment(V(14.75, 49.412287, 0), V(12, 47.824574, 0)), False)
sketch5.addGeometry(Part.LineSegment(V(12, 47.824574, 0), V(9.25, 49.412287, 0)), False)
sketch5.addGeometry(Part.LineSegment(V(9.25, 49.412287, 0), V(9.25, 52.587713, 0)), False)
sketch5.addGeometry(Part.LineSegment(V(9.25, 52.587713, 0), V(12, 54.175426, 0)), False)
sketch5.addGeometry(Part.LineSegment(V(-12, 54.175426, 0), V(-9.25, 52.587713, 0)), False)
sketch5.addGeometry(Part.LineSegment(V(-9.25, 52.587713, 0), V(-9.25, 49.412287, 0)), False)
sketch5.addGeometry(Part.LineSegment(V(-9.25, 49.412287, 0), V(-12, 47.824574, 0)), False)
sketch5.addGeometry(Part.LineSegment(V(-12, 47.824574, 0), V(-14.75, 49.412287, 0)), False)
sketch5.addGeometry(Part.LineSegment(V(-14.75, 49.412287, 0), V(-14.75, 52.587713, 0)), False)
sketch5.addGeometry(Part.LineSegment(V(-14.75, 52.587713, 0), V(-12, 54.175426, 0)), False)
sketch5.addConstraint(Sketcher.Constraint("Coincident", 0, 2, 1, 1))
sketch5.addConstraint(Sketcher.Constraint("Coincident", 1, 2, 2, 1))
sketch5.addConstraint(Sketcher.Constraint("Coincident", 2, 2, 3, 1))
sketch5.addConstraint(Sketcher.Constraint("Coincident", 3, 2, 4, 1))
sketch5.addConstraint(Sketcher.Constraint("Coincident", 4, 2, 5, 1))
sketch5.addConstraint(Sketcher.Constraint("Coincident", 5, 2, 0, 1))
sketch5.addConstraint(Sketcher.Constraint("Coincident", 6, 2, 7, 1))
sketch5.addConstraint(Sketcher.Constraint("Coincident", 7, 2, 8, 1))
sketch5.addConstraint(Sketcher.Constraint("Coincident", 8, 2, 9, 1))
sketch5.addConstraint(Sketcher.Constraint("Coincident", 9, 2, 10, 1))
sketch5.addConstraint(Sketcher.Constraint("Coincident", 10, 2, 11, 1))
sketch5.addConstraint(Sketcher.Constraint("Coincident", 11, 2, 6, 1))
sketch5.addConstraint(Sketcher.Constraint("Coincident", 12, 2, 13, 1))
sketch5.addConstraint(Sketcher.Constraint("Coincident", 13, 2, 14, 1))
sketch5.addConstraint(Sketcher.Constraint("Coincident", 14, 2, 15, 1))
sketch5.addConstraint(Sketcher.Constraint("Coincident", 15, 2, 16, 1))
sketch5.addConstraint(Sketcher.Constraint("Coincident", 16, 2, 17, 1))
sketch5.addConstraint(Sketcher.Constraint("Coincident", 17, 2, 12, 1))
sketch5.addConstraint(Sketcher.Constraint("Coincident", 18, 2, 19, 1))
sketch5.addConstraint(Sketcher.Constraint("Coincident", 19, 2, 20, 1))
sketch5.addConstraint(Sketcher.Constraint("Coincident", 20, 2, 21, 1))
sketch5.addConstraint(Sketcher.Constraint("Coincident", 21, 2, 22, 1))
sketch5.addConstraint(Sketcher.Constraint("Coincident", 22, 2, 23, 1))
sketch5.addConstraint(Sketcher.Constraint("Coincident", 23, 2, 18, 1))
sketch5.addConstraint(Sketcher.Constraint("Vertical", 1))
sketch5.addConstraint(Sketcher.Constraint("Vertical", 4))
sketch5.addConstraint(Sketcher.Constraint("Vertical", 7))
sketch5.addConstraint(Sketcher.Constraint("Vertical", 10))
sketch5.addConstraint(Sketcher.Constraint("Vertical", 13))
sketch5.addConstraint(Sketcher.Constraint("Vertical", 16))
sketch5.addConstraint(Sketcher.Constraint("Vertical", 19))
sketch5.addConstraint(Sketcher.Constraint("Vertical", 22))
sketch5.addConstraint(Sketcher.Constraint("Symmetric", 0, 2, 12, 2, -1, 1))
sketch5.addConstraint(Sketcher.Constraint("Symmetric", 2, 2, 14, 2, -1, 1))
sketch5.addConstraint(Sketcher.Constraint("Symmetric", 3, 2, 15, 2, -1, 1))
sketch5.addConstraint(Sketcher.Constraint("Symmetric", 5, 2, 17, 2, -1, 1))
sketch5.addConstraint(Sketcher.Constraint("Symmetric", 6, 2, 18, 2, -1, 1))
sketch5.addConstraint(Sketcher.Constraint("Symmetric", 8, 2, 20, 2, -1, 1))
sketch5.addConstraint(Sketcher.Constraint("Symmetric", 9, 2, 21, 2, -1, 1))
sketch5.addConstraint(Sketcher.Constraint("Symmetric", 11, 2, 23, 2, -1, 1))
sketch5.addConstraint(Sketcher.Constraint("Symmetric", 4, 2, 6, 2, -2))
sketch5.addConstraint(Sketcher.Constraint("Symmetric", 2, 2, 8, 2, -2))
sketch5.addConstraint(Sketcher.Constraint("Symmetric", 1, 2, 9, 2, -2))
sketch5.addConstraint(Sketcher.Constraint("Symmetric", 5, 2, 11, 2, -2))
sketch5.addConstraint(Sketcher.Constraint("Parallel", 0, 3))
sketch5.addConstraint(Sketcher.Constraint("Parallel", 2, 5))
sketch5.addConstraint(Sketcher.Constraint("Parallel", 3, 6))
sketch5.addConstraint(Sketcher.Constraint("Parallel", 5, 8))
sketch5.addConstraint(Sketcher.Constraint("Parallel", 8, 11))
sketch5.addConstraint(Sketcher.Constraint("Parallel", 11, 14))
sketch5.addConstraint(Sketcher.Constraint("Parallel", 14, 17))
sketch5.addConstraint(Sketcher.Constraint("Parallel", 17, 20))
sketch5.addConstraint(Sketcher.Constraint("Parallel", 20, 23))
sketch5.addConstraint(Sketcher.Constraint("Horizontal", 1, 2, 3, 2))
sketch5.addConstraint(Sketcher.Constraint("Horizontal", 0, 2, 4, 2))
sketch5.addConstraint(Sketcher.Constraint("Angle", 0, Q("150 deg")))
sketch5.addConstraint(Sketcher.Constraint("DistanceX", 2, 2, -1, 1, 12.0))
sketch5.addConstraint(Sketcher.Constraint("DistanceY", 9, 2, 12, 2, 102.0))
sketch5.addConstraint(Sketcher.Constraint("DistanceX", 1, 2, 3, 2, 5.5))
sketch5.addConstraint(Sketcher.Constraint("DistanceY", 1, 1, 1, 2, 3.175426))
pocket3 = body.newObject("PartDesign::Pocket", "Pocket002")
pocket3.Profile = sketch5
pocket3.Length = 1
pocket3.Reversed = True

doc.recompute()
